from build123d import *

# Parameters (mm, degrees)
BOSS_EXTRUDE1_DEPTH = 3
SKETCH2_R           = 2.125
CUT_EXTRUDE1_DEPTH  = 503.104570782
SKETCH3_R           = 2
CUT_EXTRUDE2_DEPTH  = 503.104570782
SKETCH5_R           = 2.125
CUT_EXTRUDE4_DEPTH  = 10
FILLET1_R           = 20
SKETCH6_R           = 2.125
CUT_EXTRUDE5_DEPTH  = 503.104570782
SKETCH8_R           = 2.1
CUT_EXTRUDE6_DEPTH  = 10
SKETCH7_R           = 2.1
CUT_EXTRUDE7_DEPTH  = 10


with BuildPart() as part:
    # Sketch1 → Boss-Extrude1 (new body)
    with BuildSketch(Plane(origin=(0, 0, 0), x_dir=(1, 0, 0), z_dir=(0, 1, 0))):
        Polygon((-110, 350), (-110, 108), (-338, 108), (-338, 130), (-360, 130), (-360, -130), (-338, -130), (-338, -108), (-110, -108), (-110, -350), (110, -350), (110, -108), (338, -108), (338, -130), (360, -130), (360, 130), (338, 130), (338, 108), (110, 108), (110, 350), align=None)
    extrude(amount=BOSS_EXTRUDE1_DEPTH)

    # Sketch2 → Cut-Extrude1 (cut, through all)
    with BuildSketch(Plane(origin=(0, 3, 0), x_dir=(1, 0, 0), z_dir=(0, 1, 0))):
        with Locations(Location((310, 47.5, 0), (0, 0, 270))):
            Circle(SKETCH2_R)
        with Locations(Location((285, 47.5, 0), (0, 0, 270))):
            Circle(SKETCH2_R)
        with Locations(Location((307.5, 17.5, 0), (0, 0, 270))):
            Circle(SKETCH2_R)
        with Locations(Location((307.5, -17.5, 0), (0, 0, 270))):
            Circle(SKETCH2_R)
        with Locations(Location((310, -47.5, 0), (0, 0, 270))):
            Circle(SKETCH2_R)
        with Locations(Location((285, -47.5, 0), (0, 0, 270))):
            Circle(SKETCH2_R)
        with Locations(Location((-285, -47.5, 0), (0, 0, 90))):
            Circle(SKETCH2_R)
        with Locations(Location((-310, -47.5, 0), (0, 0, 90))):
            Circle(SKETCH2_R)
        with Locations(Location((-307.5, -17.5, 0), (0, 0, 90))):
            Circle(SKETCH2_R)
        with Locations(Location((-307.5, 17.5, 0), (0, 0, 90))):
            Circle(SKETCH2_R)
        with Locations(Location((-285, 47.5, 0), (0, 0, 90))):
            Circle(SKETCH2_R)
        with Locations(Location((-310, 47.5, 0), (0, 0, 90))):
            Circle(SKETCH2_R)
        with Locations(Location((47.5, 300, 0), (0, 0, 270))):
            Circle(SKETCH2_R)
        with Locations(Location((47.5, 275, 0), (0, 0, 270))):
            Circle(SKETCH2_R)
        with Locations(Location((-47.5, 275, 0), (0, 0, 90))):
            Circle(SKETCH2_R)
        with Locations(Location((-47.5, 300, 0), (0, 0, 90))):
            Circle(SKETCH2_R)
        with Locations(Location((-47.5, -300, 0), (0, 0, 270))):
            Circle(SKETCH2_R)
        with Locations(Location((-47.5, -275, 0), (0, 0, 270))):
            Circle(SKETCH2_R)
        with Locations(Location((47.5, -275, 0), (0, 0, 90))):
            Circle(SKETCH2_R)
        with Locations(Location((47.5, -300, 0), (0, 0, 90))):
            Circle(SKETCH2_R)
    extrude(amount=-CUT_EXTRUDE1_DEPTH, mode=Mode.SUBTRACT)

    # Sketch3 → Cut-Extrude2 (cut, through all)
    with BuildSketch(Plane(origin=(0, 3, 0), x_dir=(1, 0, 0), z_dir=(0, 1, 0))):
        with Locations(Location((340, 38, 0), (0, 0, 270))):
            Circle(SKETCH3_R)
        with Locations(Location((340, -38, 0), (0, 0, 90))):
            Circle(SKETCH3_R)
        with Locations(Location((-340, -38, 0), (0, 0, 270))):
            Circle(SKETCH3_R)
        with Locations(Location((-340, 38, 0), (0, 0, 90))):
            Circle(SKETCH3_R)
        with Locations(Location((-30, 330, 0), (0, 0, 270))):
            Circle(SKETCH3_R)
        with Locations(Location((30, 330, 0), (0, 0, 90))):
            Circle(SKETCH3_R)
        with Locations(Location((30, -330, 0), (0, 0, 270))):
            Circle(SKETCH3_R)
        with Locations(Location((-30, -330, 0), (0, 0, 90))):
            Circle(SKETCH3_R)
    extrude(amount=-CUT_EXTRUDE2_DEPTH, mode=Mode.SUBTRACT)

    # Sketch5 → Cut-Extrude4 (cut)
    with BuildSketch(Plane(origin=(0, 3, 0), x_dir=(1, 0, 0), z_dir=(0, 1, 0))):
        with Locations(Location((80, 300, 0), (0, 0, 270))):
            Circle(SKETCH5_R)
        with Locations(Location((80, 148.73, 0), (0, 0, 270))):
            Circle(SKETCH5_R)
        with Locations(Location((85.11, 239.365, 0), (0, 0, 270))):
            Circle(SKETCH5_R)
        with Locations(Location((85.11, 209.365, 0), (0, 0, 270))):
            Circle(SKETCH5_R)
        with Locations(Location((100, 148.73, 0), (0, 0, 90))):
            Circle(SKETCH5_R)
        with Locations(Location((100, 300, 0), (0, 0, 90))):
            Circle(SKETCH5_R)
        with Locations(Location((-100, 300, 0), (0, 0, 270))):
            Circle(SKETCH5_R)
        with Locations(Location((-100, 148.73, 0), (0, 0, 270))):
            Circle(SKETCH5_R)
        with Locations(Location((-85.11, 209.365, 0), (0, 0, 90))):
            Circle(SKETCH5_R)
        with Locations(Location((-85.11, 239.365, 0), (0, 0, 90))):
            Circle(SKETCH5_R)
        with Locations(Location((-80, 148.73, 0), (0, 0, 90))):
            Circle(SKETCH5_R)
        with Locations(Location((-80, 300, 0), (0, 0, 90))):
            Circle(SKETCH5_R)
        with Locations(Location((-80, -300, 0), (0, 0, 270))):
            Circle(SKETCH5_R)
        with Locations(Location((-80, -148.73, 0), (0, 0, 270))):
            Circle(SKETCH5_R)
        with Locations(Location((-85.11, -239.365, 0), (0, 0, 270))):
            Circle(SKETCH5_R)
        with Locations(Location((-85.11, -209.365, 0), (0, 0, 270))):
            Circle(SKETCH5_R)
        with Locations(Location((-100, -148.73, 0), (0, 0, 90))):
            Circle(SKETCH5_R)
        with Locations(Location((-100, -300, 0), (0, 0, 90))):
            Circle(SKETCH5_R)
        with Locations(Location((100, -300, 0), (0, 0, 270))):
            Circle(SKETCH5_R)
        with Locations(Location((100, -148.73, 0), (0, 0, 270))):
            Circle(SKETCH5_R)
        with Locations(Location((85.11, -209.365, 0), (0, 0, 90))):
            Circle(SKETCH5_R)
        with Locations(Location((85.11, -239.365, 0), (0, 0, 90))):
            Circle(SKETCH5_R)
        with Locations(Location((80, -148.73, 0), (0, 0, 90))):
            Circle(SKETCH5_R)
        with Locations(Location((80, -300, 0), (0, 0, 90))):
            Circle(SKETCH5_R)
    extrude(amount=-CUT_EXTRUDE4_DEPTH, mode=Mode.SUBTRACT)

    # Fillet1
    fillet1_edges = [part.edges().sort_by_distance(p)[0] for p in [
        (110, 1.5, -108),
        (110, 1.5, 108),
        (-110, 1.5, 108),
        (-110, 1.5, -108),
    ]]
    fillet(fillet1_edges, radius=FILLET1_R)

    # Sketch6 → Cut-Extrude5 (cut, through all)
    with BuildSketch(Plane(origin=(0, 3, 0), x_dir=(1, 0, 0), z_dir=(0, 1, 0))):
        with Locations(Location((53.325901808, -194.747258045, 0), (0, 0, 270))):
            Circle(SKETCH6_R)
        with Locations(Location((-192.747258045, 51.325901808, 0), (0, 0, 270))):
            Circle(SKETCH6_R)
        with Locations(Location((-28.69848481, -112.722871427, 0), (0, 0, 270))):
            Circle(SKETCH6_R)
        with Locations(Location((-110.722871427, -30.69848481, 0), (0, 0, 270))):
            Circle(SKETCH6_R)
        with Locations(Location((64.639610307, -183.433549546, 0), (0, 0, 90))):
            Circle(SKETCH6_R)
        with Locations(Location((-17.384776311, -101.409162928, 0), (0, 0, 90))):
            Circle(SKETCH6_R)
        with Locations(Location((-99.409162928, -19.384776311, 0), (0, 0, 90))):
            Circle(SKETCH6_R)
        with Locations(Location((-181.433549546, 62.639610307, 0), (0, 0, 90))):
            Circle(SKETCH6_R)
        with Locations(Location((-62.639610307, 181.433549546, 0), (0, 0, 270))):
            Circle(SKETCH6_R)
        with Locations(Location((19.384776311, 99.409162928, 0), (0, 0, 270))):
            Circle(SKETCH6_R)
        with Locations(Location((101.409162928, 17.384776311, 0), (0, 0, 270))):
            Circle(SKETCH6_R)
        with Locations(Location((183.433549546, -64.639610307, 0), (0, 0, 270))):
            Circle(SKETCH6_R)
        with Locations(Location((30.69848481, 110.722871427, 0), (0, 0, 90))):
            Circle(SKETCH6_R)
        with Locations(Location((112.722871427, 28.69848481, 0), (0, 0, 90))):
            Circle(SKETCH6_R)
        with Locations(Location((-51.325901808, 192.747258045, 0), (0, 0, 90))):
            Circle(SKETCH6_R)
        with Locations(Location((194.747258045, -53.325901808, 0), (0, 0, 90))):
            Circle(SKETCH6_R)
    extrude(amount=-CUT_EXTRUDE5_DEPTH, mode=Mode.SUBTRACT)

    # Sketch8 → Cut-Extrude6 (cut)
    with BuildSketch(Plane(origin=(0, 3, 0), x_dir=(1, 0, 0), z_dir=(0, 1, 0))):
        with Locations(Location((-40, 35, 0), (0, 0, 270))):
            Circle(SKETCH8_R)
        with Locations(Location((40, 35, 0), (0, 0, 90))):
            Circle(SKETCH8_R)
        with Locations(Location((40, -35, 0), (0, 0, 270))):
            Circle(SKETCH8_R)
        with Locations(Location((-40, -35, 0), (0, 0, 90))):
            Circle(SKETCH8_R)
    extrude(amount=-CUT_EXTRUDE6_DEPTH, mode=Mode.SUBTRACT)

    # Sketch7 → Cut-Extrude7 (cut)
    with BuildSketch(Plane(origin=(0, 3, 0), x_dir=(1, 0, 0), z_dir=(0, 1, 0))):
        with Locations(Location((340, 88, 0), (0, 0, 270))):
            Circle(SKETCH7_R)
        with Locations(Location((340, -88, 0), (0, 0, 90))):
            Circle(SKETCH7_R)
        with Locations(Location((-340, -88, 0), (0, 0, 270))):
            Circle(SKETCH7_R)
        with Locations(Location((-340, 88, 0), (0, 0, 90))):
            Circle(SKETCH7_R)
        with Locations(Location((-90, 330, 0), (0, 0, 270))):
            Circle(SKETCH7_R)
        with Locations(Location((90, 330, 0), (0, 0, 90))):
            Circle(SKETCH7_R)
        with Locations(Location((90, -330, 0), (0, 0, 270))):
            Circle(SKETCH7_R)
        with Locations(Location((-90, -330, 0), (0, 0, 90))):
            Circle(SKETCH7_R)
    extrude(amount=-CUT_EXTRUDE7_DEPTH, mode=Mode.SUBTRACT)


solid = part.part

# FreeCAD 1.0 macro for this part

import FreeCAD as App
import Part
import Sketcher
Q = App.Units.Quantity


def edges_at(feature, points):
    """Names of the edges that pass closest to the given points."""
    edges = feature.Shape.Edges
    near = lambda p: min(range(len(edges)), key=lambda i: edges[i].distToShape(Part.Vertex(*p))[0])
    return sorted({f"Edge{near(p) + 1}" for p in points})


def add_polygon(sketch, points):
    """Adds a closed chain of lines whose ends are joined by coincident constraints."""
    first, n = sketch.GeometryCount, len(points)
    for a, b in zip(points, points[1:] + points[:1]):
        sketch.addGeometry(Part.LineSegment(App.Vector(*a, 0), App.Vector(*b, 0)), False)
    for i in range(n):
        sketch.addConstraint(Sketcher.Constraint("Coincident", first + i, 2, first + (i + 1) % n, 1))

doc = App.newDocument("Part")
body = doc.addObject("PartDesign::Body", "Body")

# Sketch on XZ plane
sketch1 = doc.addObject("Sketcher::SketchObject", "Sketch")
body.addObject(sketch1)
sketch1.AttachmentSupport = (doc.XZ_Plane, [""])
sketch1.MapMode = "FlatFace"
add_polygon(sketch1, [(-110, -350), (-110, -108), (-338, -108), (-338, -130), (-360, -130), (-360, 130), (-338, 130), (-338, 108), (-110, 108), (-110, 350), (110, 350), (110, 108), (338, 108), (338, 130), (360, 130), (360, -130), (338, -130), (338, -108), (110, -108), (110, -350)])  # lines 0-19
sketch1.addConstraint([
    Sketcher.Constraint("Vertical", 0),
    Sketcher.Constraint("Horizontal", 1),
    Sketcher.Constraint("Vertical", 2),
    Sketcher.Constraint("Horizontal", 3),
    Sketcher.Constraint("Vertical", 4),
    Sketcher.Constraint("Horizontal", 5),
    Sketcher.Constraint("Vertical", 6),
    Sketcher.Constraint("Horizontal", 7),
    Sketcher.Constraint("Vertical", 8),
    Sketcher.Constraint("Horizontal", 9),
    Sketcher.Constraint("Vertical", 10),
    Sketcher.Constraint("Horizontal", 11),
    Sketcher.Constraint("Vertical", 12),
    Sketcher.Constraint("Horizontal", 13),
    Sketcher.Constraint("Vertical", 14),
    Sketcher.Constraint("Horizontal", 15),
    Sketcher.Constraint("Vertical", 16),
    Sketcher.Constraint("Horizontal", 17),
    Sketcher.Constraint("Vertical", 18),
    Sketcher.Constraint("Horizontal", 19),
    Sketcher.Constraint("Symmetric", 0, 2, 10, 2, -1, 1),
    Sketcher.Constraint("Symmetric", 2, 2, 12, 2, -1, 1),
    Sketcher.Constraint("Symmetric", 4, 2, 14, 2, -1, 1),
    Sketcher.Constraint("Symmetric", 6, 2, 16, 2, -1, 1),
    Sketcher.Constraint("Symmetric", 8, 2, 18, 2, -1, 1),
    Sketcher.Constraint("Symmetric", 7, 2, 10, 2, -2),
    Sketcher.Constraint("Symmetric", 5, 2, 12, 2, -2),
    Sketcher.Constraint("Equal", 15, 2),
    Sketcher.Constraint("DistanceX", 1, 2, 1, 1, Q("228 mm")),
    Sketcher.Constraint("DistanceX", 3, 2, 3, 1, Q("22 mm")),
    Sketcher.Constraint("DistanceX", 9, 1, 9, 2, Q("220 mm")),
    Sketcher.Constraint("DistanceY", 0, 1, 0, 2, Q("242 mm")),
    Sketcher.Constraint("DistanceY", 4, 1, 4, 2, Q("260 mm")),
])
pad1 = doc.addObject("PartDesign::Pad", "Pad")
body.addObject(pad1)
pad1.Profile = sketch1
pad1.Length = 3
pad1.Reversed = True

# Sketch on XZ plane
sketch2 = doc.addObject("Sketcher::SketchObject", "Sketch001")
body.addObject(sketch2)
sketch2.AttachmentSupport = (doc.XZ_Plane, [""])
sketch2.MapMode = "FlatFace"
sketch2.AttachmentOffset = App.Placement(App.Vector(0, 0, -3), App.Rotation())
sketch2.addGeometry([
    Part.Circle(App.Vector(310, -47.5, 0), App.Vector(0, 0, 1), 2.1),  # 0
    Part.Circle(App.Vector(285, -47.5, 0), App.Vector(0, 0, 1), 2.1),  # 1
    Part.Circle(App.Vector(307.5, -17.5, 0), App.Vector(0, 0, 1), 2.1),  # 2
    Part.Circle(App.Vector(307.5, 17.5, 0), App.Vector(0, 0, 1), 2.1),  # 3
    Part.Circle(App.Vector(310, 47.5, 0), App.Vector(0, 0, 1), 2.1),  # 4
    Part.Circle(App.Vector(285, 47.5, 0), App.Vector(0, 0, 1), 2.1),  # 5
    Part.Circle(App.Vector(-285, 47.5, 0), App.Vector(0, 0, 1), 2.1),  # 6
    Part.Circle(App.Vector(-310, 47.5, 0), App.Vector(0, 0, 1), 2.1),  # 7
    Part.Circle(App.Vector(-307.5, 17.5, 0), App.Vector(0, 0, 1), 2.1),  # 8
    Part.Circle(App.Vector(-307.5, -17.5, 0), App.Vector(0, 0, 1), 2.1),  # 9
    Part.Circle(App.Vector(-285, -47.5, 0), App.Vector(0, 0, 1), 2.1),  # 10
    Part.Circle(App.Vector(-310, -47.5, 0), App.Vector(0, 0, 1), 2.1),  # 11
    Part.Circle(App.Vector(47.5, -300, 0), App.Vector(0, 0, 1), 2.1),  # 12
    Part.Circle(App.Vector(47.5, -275, 0), App.Vector(0, 0, 1), 2.1),  # 13
    Part.Circle(App.Vector(-47.5, -275, 0), App.Vector(0, 0, 1), 2.1),  # 14
    Part.Circle(App.Vector(-47.5, -300, 0), App.Vector(0, 0, 1), 2.1),  # 15
    Part.Circle(App.Vector(-47.5, 300, 0), App.Vector(0, 0, 1), 2.1),  # 16
    Part.Circle(App.Vector(-47.5, 275, 0), App.Vector(0, 0, 1), 2.1),  # 17
    Part.Circle(App.Vector(47.5, 275, 0), App.Vector(0, 0, 1), 2.1),  # 18
    Part.Circle(App.Vector(47.5, 300, 0), App.Vector(0, 0, 1), 2.1),  # 19
], False)
sketch2.addConstraint([
    Sketcher.Constraint("Equal", 0, 1),
    Sketcher.Constraint("Equal", 1, 2),
    Sketcher.Constraint("Equal", 2, 3),
    Sketcher.Constraint("Equal", 3, 4),
    Sketcher.Constraint("Equal", 4, 5),
    Sketcher.Constraint("Equal", 5, 6),
    Sketcher.Constraint("Equal", 6, 7),
    Sketcher.Constraint("Equal", 7, 8),
    Sketcher.Constraint("Equal", 8, 9),
    Sketcher.Constraint("Equal", 9, 10),
    Sketcher.Constraint("Equal", 10, 11),
    Sketcher.Constraint("Equal", 11, 12),
    Sketcher.Constraint("Equal", 12, 13),
    Sketcher.Constraint("Equal", 13, 14),
    Sketcher.Constraint("Equal", 14, 15),
    Sketcher.Constraint("Equal", 15, 16),
    Sketcher.Constraint("Equal", 16, 17),
    Sketcher.Constraint("Equal", 17, 18),
    Sketcher.Constraint("Equal", 18, 19),
    Sketcher.Constraint("Symmetric", 1, 3, 6, 3, -1, 1),
    Sketcher.Constraint("Symmetric", 0, 3, 7, 3, -1, 1),
    Sketcher.Constraint("Symmetric", 2, 3, 8, 3, -1, 1),
    Sketcher.Constraint("Symmetric", 3, 3, 9, 3, -1, 1),
    Sketcher.Constraint("Symmetric", 5, 3, 10, 3, -1, 1),
    Sketcher.Constraint("Symmetric", 4, 3, 11, 3, -1, 1),
    Sketcher.Constraint("Symmetric", 12, 3, 16, 3, -1, 1),
    Sketcher.Constraint("Symmetric", 13, 3, 17, 3, -1, 1),
    Sketcher.Constraint("Symmetric", 14, 3, 18, 3, -1, 1),
    Sketcher.Constraint("Symmetric", 15, 3, 19, 3, -1, 1),
    Sketcher.Constraint("Symmetric", 5, 3, 6, 3, -2),
    Sketcher.Constraint("Symmetric", 4, 3, 7, 3, -2),
    Sketcher.Constraint("Symmetric", 3, 3, 8, 3, -2),
    Sketcher.Constraint("Symmetric", 13, 3, 14, 3, -2),
    Sketcher.Constraint("Symmetric", 12, 3, 15, 3, -2),
    Sketcher.Constraint("Horizontal", 0, 3, 1, 3),
    Sketcher.Constraint("Vertical", 12, 3, 13, 3),
    Sketcher.Constraint("Diameter", 0, Q("4.25 mm")),
    Sketcher.Constraint("DistanceX", -1, 1, 0, 3, Q("310 mm")),
    Sketcher.Constraint("DistanceX", -1, 1, 1, 3, Q("285 mm")),
    Sketcher.Constraint("DistanceY", 12, 3, -1, 1, Q("300 mm")),
    Sketcher.Constraint("DistanceY", 13, 3, -1, 1, Q("275 mm")),
    Sketcher.Constraint("DistanceY", 0, 3, 2, 3, Q("30 mm")),
    Sketcher.Constraint("DistanceY", 2, 3, 3, 3, Q("35 mm")),
    Sketcher.Constraint("DistanceX", 8, 3, 3, 3, Q("615 mm")),
    Sketcher.Constraint("DistanceX", 12, 3, 2, 3, Q("260 mm")),
])
pocket1 = doc.addObject("PartDesign::Pocket", "Pocket")
body.addObject(pocket1)
pocket1.Profile = sketch2
pocket1.Type = "ThroughAll"
pocket1.Reversed = True

# Sketch on XZ plane
sketch3 = doc.addObject("Sketcher::SketchObject", "Sketch002")
body.addObject(sketch3)
sketch3.AttachmentSupport = (doc.XZ_Plane, [""])
sketch3.MapMode = "FlatFace"
sketch3.AttachmentOffset = App.Placement(App.Vector(0, 0, -3), App.Rotation())
sketch3.addGeometry([
    Part.Circle(App.Vector(340, -38, 0), App.Vector(0, 0, 1), 2),  # 0
    Part.Circle(App.Vector(340, 38, 0), App.Vector(0, 0, 1), 2),  # 1
    Part.Circle(App.Vector(-340, 38, 0), App.Vector(0, 0, 1), 2),  # 2
    Part.Circle(App.Vector(-340, -38, 0), App.Vector(0, 0, 1), 2),  # 3
    Part.Circle(App.Vector(-30, -330, 0), App.Vector(0, 0, 1), 2),  # 4
    Part.Circle(App.Vector(30, -330, 0), App.Vector(0, 0, 1), 2),  # 5
    Part.Circle(App.Vector(30, 330, 0), App.Vector(0, 0, 1), 2),  # 6
    Part.Circle(App.Vector(-30, 330, 0), App.Vector(0, 0, 1), 2),  # 7
], False)
sketch3.addConstraint([
    Sketcher.Constraint("Equal", 0, 1),
    Sketcher.Constraint("Equal", 1, 2),
    Sketcher.Constraint("Equal", 2, 3),
    Sketcher.Constraint("Equal", 3, 4),
    Sketcher.Constraint("Equal", 4, 5),
    Sketcher.Constraint("Equal", 5, 6),
    Sketcher.Constraint("Equal", 6, 7),
    Sketcher.Constraint("Symmetric", 0, 3, 2, 3, -1, 1),
    Sketcher.Constraint("Symmetric", 1, 3, 3, 3, -1, 1),
    Sketcher.Constraint("Symmetric", 4, 3, 6, 3, -1, 1),
    Sketcher.Constraint("Symmetric", 5, 3, 7, 3, -1, 1),
    Sketcher.Constraint("Symmetric", 1, 3, 2, 3, -2),
    Sketcher.Constraint("Symmetric", 4, 3, 5, 3, -2),
    Sketcher.Constraint("Diameter", 0, Q("4 mm")),
    Sketcher.Constraint("DistanceX", -1, 1, 0, 3, Q("340 mm")),
    Sketcher.Constraint("DistanceY", 0, 3, -1, 1, Q("38 mm")),
    Sketcher.Constraint("DistanceX", 4, 3, -1, 1, Q("30 mm")),
    Sketcher.Constraint("DistanceY", 4, 3, -1, 1, Q("330 mm")),
])
pocket2 = doc.addObject("PartDesign::Pocket", "Pocket001")
body.addObject(pocket2)
pocket2.Profile = sketch3
pocket2.Type = "ThroughAll"
pocket2.Reversed = True

# Sketch on XZ plane
sketch4 = doc.addObject("Sketcher::SketchObject", "Sketch003")
body.addObject(sketch4)
sketch4.AttachmentSupport = (doc.XZ_Plane, [""])
sketch4.MapMode = "FlatFace"
sketch4.AttachmentOffset = App.Placement(App.Vector(0, 0, -3), App.Rotation())
sketch4.addGeometry([
    Part.Circle(App.Vector(80, -300, 0), App.Vector(0, 0, 1), 2.1),  # 0
    Part.Circle(App.Vector(80, -148.7, 0), App.Vector(0, 0, 1), 2.1),  # 1
    Part.Circle(App.Vector(85.1, -239.4, 0), App.Vector(0, 0, 1), 2.1),  # 2
    Part.Circle(App.Vector(85.1, -209.4, 0), App.Vector(0, 0, 1), 2.1),  # 3
    Part.Circle(App.Vector(100, -148.7, 0), App.Vector(0, 0, 1), 2.1),  # 4
    Part.Circle(App.Vector(100, -300, 0), App.Vector(0, 0, 1), 2.1),  # 5
    Part.Circle(App.Vector(-100, -300, 0), App.Vector(0, 0, 1), 2.1),  # 6
    Part.Circle(App.Vector(-100, -148.7, 0), App.Vector(0, 0, 1), 2.1),  # 7
    Part.Circle(App.Vector(-85.1, -209.4, 0), App.Vector(0, 0, 1), 2.1),  # 8
    Part.Circle(App.Vector(-85.1, -239.4, 0), App.Vector(0, 0, 1), 2.1),  # 9
    Part.Circle(App.Vector(-80, -148.7, 0), App.Vector(0, 0, 1), 2.1),  # 10
    Part.Circle(App.Vector(-80, -300, 0), App.Vector(0, 0, 1), 2.1),  # 11
    Part.Circle(App.Vector(-80, 300, 0), App.Vector(0, 0, 1), 2.1),  # 12
    Part.Circle(App.Vector(-80, 148.7, 0), App.Vector(0, 0, 1), 2.1),  # 13
    Part.Circle(App.Vector(-85.1, 239.4, 0), App.Vector(0, 0, 1), 2.1),  # 14
    Part.Circle(App.Vector(-85.1, 209.4, 0), App.Vector(0, 0, 1), 2.1),  # 15
    Part.Circle(App.Vector(-100, 148.7, 0), App.Vector(0, 0, 1), 2.1),  # 16
    Part.Circle(App.Vector(-100, 300, 0), App.Vector(0, 0, 1), 2.1),  # 17
    Part.Circle(App.Vector(100, 300, 0), App.Vector(0, 0, 1), 2.1),  # 18
    Part.Circle(App.Vector(100, 148.7, 0), App.Vector(0, 0, 1), 2.1),  # 19
    Part.Circle(App.Vector(85.1, 209.4, 0), App.Vector(0, 0, 1), 2.1),  # 20
    Part.Circle(App.Vector(85.1, 239.4, 0), App.Vector(0, 0, 1), 2.1),  # 21
    Part.Circle(App.Vector(80, 148.7, 0), App.Vector(0, 0, 1), 2.1),  # 22
    Part.Circle(App.Vector(80, 300, 0), App.Vector(0, 0, 1), 2.1),  # 23
], False)
sketch4.addConstraint([
    Sketcher.Constraint("Equal", 0, 1),
    Sketcher.Constraint("Equal", 1, 2),
    Sketcher.Constraint("Equal", 2, 3),
    Sketcher.Constraint("Equal", 3, 4),
    Sketcher.Constraint("Equal", 4, 5),
    Sketcher.Constraint("Equal", 5, 6),
    Sketcher.Constraint("Equal", 6, 7),
    Sketcher.Constraint("Equal", 7, 8),
    Sketcher.Constraint("Equal", 8, 9),
    Sketcher.Constraint("Equal", 9, 10),
    Sketcher.Constraint("Equal", 10, 11),
    Sketcher.Constraint("Equal", 11, 12),
    Sketcher.Constraint("Equal", 12, 13),
    Sketcher.Constraint("Equal", 13, 14),
    Sketcher.Constraint("Equal", 14, 15),
    Sketcher.Constraint("Equal", 15, 16),
    Sketcher.Constraint("Equal", 16, 17),
    Sketcher.Constraint("Equal", 17, 18),
    Sketcher.Constraint("Equal", 18, 19),
    Sketcher.Constraint("Equal", 19, 20),
    Sketcher.Constraint("Equal", 20, 21),
    Sketcher.Constraint("Equal", 21, 22),
    Sketcher.Constraint("Equal", 22, 23),
    Sketcher.Constraint("Symmetric", 0, 3, 12, 3, -1, 1),
    Sketcher.Constraint("Symmetric", 1, 3, 13, 3, -1, 1),
    Sketcher.Constraint("Symmetric", 2, 3, 14, 3, -1, 1),
    Sketcher.Constraint("Symmetric", 3, 3, 15, 3, -1, 1),
    Sketcher.Constraint("Symmetric", 4, 3, 16, 3, -1, 1),
    Sketcher.Constraint("Symmetric", 5, 3, 17, 3, -1, 1),
    Sketcher.Constraint("Symmetric", 6, 3, 18, 3, -1, 1),
    Sketcher.Constraint("Symmetric", 7, 3, 19, 3, -1, 1),
    Sketcher.Constraint("Symmetric", 8, 3, 20, 3, -1, 1),
    Sketcher.Constraint("Symmetric", 9, 3, 21, 3, -1, 1),
    Sketcher.Constraint("Symmetric", 10, 3, 22, 3, -1, 1),
    Sketcher.Constraint("Symmetric", 11, 3, 23, 3, -1, 1),
    Sketcher.Constraint("Symmetric", 5, 3, 6, 3, -2),
    Sketcher.Constraint("Symmetric", 4, 3, 7, 3, -2),
    Sketcher.Constraint("Symmetric", 3, 3, 8, 3, -2),
    Sketcher.Constraint("Symmetric", 2, 3, 9, 3, -2),
    Sketcher.Constraint("Symmetric", 1, 3, 10, 3, -2),
    Sketcher.Constraint("Symmetric", 0, 3, 11, 3, -2),
    Sketcher.Constraint("Horizontal", 1, 3, 4, 3),
    Sketcher.Constraint("Horizontal", 0, 3, 5, 3),
    Sketcher.Constraint("Vertical", 0, 3, 1, 3),
    Sketcher.Constraint("Vertical", 2, 3, 3, 3),
    Sketcher.Constraint("Vertical", 4, 3, 5, 3),
    Sketcher.Constraint("Diameter", 0, Q("4.25 mm")),
    Sketcher.Constraint("DistanceX", -1, 1, 0, 3, Q("80 mm")),
    Sketcher.Constraint("DistanceY", 0, 3, -1, 1, Q("300 mm")),
    Sketcher.Constraint("DistanceX", -1, 1, 4, 3, Q("100 mm")),
    Sketcher.Constraint("DistanceY", 2, 3, 3, 3, Q("30 mm")),
    Sketcher.Constraint("DistanceY", 1, 3, -1, 1, Q("148.73 mm")),
    Sketcher.Constraint("DistanceX", -1, 1, 2, 3, Q("85.11 mm")),
    Sketcher.Constraint("DistanceY", 2, 3, -1, 1, Q("239.365 mm")),
])
pocket3 = doc.addObject("PartDesign::Pocket", "Pocket002")
body.addObject(pocket3)
pocket3.Profile = sketch4
pocket3.Length = 10
pocket3.Reversed = True
doc.recompute()

fillet = doc.addObject("PartDesign::Fillet", "Fillet")
body.addObject(fillet)
fillet.Base = (pocket3, edges_at(pocket3, [
    (110, 1.5, -108),
    (110, 1.5, 108),
    (-110, 1.5, 108),
    (-110, 1.5, -108),
]))
fillet.Radius = 20

# Sketch on XZ plane
sketch5 = doc.addObject("Sketcher::SketchObject", "Sketch004")
body.addObject(sketch5)
sketch5.AttachmentSupport = (doc.XZ_Plane, [""])
sketch5.MapMode = "FlatFace"
sketch5.AttachmentOffset = App.Placement(App.Vector(0, 0, -3), App.Rotation())
sketch5.addGeometry([
    Part.Circle(App.Vector(53.3, 194.7, 0), App.Vector(0, 0, 1), 2.1),  # 0
    Part.Circle(App.Vector(-192.7, -51.3, 0), App.Vector(0, 0, 1), 2.1),  # 1
    Part.Circle(App.Vector(-28.7, 112.7, 0), App.Vector(0, 0, 1), 2.1),  # 2
    Part.Circle(App.Vector(-110.7, 30.7, 0), App.Vector(0, 0, 1), 2.1),  # 3
    Part.Circle(App.Vector(64.6, 183.4, 0), App.Vector(0, 0, 1), 2.1),  # 4
    Part.Circle(App.Vector(-17.4, 101.4, 0), App.Vector(0, 0, 1), 2.1),  # 5
    Part.Circle(App.Vector(-99.4, 19.4, 0), App.Vector(0, 0, 1), 2.1),  # 6
    Part.Circle(App.Vector(-181.4, -62.6, 0), App.Vector(0, 0, 1), 2.1),  # 7
    Part.Circle(App.Vector(-62.6, -181.4, 0), App.Vector(0, 0, 1), 2.1),  # 8
    Part.Circle(App.Vector(19.4, -99.4, 0), App.Vector(0, 0, 1), 2.1),  # 9
    Part.Circle(App.Vector(101.4, -17.4, 0), App.Vector(0, 0, 1), 2.1),  # 10
    Part.Circle(App.Vector(183.4, 64.6, 0), App.Vector(0, 0, 1), 2.1),  # 11
    Part.Circle(App.Vector(30.7, -110.7, 0), App.Vector(0, 0, 1), 2.1),  # 12
    Part.Circle(App.Vector(112.7, -28.7, 0), App.Vector(0, 0, 1), 2.1),  # 13
    Part.Circle(App.Vector(-51.3, -192.7, 0), App.Vector(0, 0, 1), 2.1),  # 14
    Part.Circle(App.Vector(194.7, 53.3, 0), App.Vector(0, 0, 1), 2.1),  # 15
], False)
sketch5.addConstraint([
    Sketcher.Constraint("Equal", 0, 1),
    Sketcher.Constraint("Equal", 1, 2),
    Sketcher.Constraint("Equal", 2, 3),
    Sketcher.Constraint("Equal", 3, 4),
    Sketcher.Constraint("Equal", 4, 5),
    Sketcher.Constraint("Equal", 5, 6),
    Sketcher.Constraint("Equal", 6, 7),
    Sketcher.Constraint("Equal", 7, 8),
    Sketcher.Constraint("Equal", 8, 9),
    Sketcher.Constraint("Equal", 9, 10),
    Sketcher.Constraint("Equal", 10, 11),
    Sketcher.Constraint("Equal", 11, 12),
    Sketcher.Constraint("Equal", 12, 13),
    Sketcher.Constraint("Equal", 13, 14),
    Sketcher.Constraint("Equal", 14, 15),
    Sketcher.Constraint("Diameter", 0, Q("4.25 mm")),
    Sketcher.Constraint("DistanceX", -1, 1, 0, 3, Q("53.325902 mm")),
    Sketcher.Constraint("DistanceY", 1, 3, -1, 1, Q("51.325902 mm")),
    Sketcher.Constraint("DistanceX", 14, 3, -1, 1, Q("51.325902 mm")),
    Sketcher.Constraint("DistanceY", -1, 1, 15, 3, Q("53.325902 mm")),
    Sketcher.Constraint("DistanceY", -1, 1, 0, 3, Q("194.747258 mm")),
    Sketcher.Constraint("DistanceX", 1, 3, -1, 1, Q("192.747258 mm")),
    Sketcher.Constraint("DistanceY", -1, 1, 2, 3, Q("112.722871 mm")),
    Sketcher.Constraint("DistanceX", 3, 3, -1, 1, Q("110.722871 mm")),
    Sketcher.Constraint("DistanceX", -1, 1, 4, 3, Q("64.63961 mm")),
    Sketcher.Constraint("DistanceY", -1, 1, 4, 3, Q("183.43355 mm")),
    Sketcher.Constraint("DistanceX", 7, 3, -1, 1, Q("181.43355 mm")),
    Sketcher.Constraint("DistanceY", 7, 3, -1, 1, Q("62.63961 mm")),
    Sketcher.Constraint("DistanceX", 8, 3, -1, 1, Q("62.63961 mm")),
    Sketcher.Constraint("DistanceY", 8, 3, -1, 1, Q("181.43355 mm")),
    Sketcher.Constraint("DistanceX", -1, 1, 11, 3, Q("183.43355 mm")),
    Sketcher.Constraint("DistanceY", -1, 1, 11, 3, Q("64.63961 mm")),
    Sketcher.Constraint("DistanceY", 12, 3, -1, 1, Q("110.722871 mm")),
    Sketcher.Constraint("DistanceX", -1, 1, 13, 3, Q("112.722871 mm")),
    Sketcher.Constraint("DistanceY", 14, 3, -1, 1, Q("192.747258 mm")),
    Sketcher.Constraint("DistanceX", -1, 1, 15, 3, Q("194.747258 mm")),
    Sketcher.Constraint("DistanceX", 2, 3, 5, 3, Q("11.313708 mm")),
    Sketcher.Constraint("DistanceY", 5, 3, 2, 3, Q("11.313708 mm")),
    Sketcher.Constraint("DistanceY", 3, 3, 5, 3, Q("70.710678 mm")),
    Sketcher.Constraint("DistanceX", 5, 3, 0, 3, Q("70.710678 mm")),
    Sketcher.Constraint("DistanceX", 3, 3, 6, 3, Q("11.313708 mm")),
    Sketcher.Constraint("DistanceY", 6, 3, 3, 3, Q("11.313708 mm")),
    Sketcher.Constraint("DistanceX", 6, 3, 9, 3, Q("118.793939 mm")),
    Sketcher.Constraint("DistanceY", 9, 3, 6, 3, Q("118.793939 mm")),
    Sketcher.Constraint("DistanceX", 5, 3, 10, 3, Q("118.793939 mm")),
    Sketcher.Constraint("DistanceY", 10, 3, 5, 3, Q("118.793939 mm")),
    Sketcher.Constraint("DistanceX", 9, 3, 12, 3, Q("11.313708 mm")),
    Sketcher.Constraint("DistanceY", 13, 3, 10, 3, Q("11.313708 mm")),
])
pocket4 = doc.addObject("PartDesign::Pocket", "Pocket003")
body.addObject(pocket4)
pocket4.Profile = sketch5
pocket4.Type = "ThroughAll"
pocket4.Reversed = True

# Sketch on XZ plane
sketch6 = doc.addObject("Sketcher::SketchObject", "Sketch005")
body.addObject(sketch6)
sketch6.AttachmentSupport = (doc.XZ_Plane, [""])
sketch6.MapMode = "FlatFace"
sketch6.AttachmentOffset = App.Placement(App.Vector(0, 0, -3), App.Rotation())
sketch6.addGeometry([
    Part.Circle(App.Vector(-40, -35, 0), App.Vector(0, 0, 1), 2.1),
    Part.Circle(App.Vector(40, -35, 0), App.Vector(0, 0, 1), 2.1),
    Part.Circle(App.Vector(40, 35, 0), App.Vector(0, 0, 1), 2.1),
    Part.Circle(App.Vector(-40, 35, 0), App.Vector(0, 0, 1), 2.1),
], False)
sketch6.addConstraint([
    Sketcher.Constraint("Equal", 0, 1),
    Sketcher.Constraint("Equal", 1, 2),
    Sketcher.Constraint("Equal", 2, 3),
    Sketcher.Constraint("Symmetric", 0, 3, 2, 3, -1, 1),
    Sketcher.Constraint("Symmetric", 1, 3, 3, 3, -1, 1),
    Sketcher.Constraint("Symmetric", 0, 3, 1, 3, -2),
    Sketcher.Constraint("Diameter", 0, Q("4.2 mm")),
    Sketcher.Constraint("DistanceX", 0, 3, -1, 1, Q("40 mm")),
    Sketcher.Constraint("DistanceY", 0, 3, -1, 1, Q("35 mm")),
])
pocket5 = doc.addObject("PartDesign::Pocket", "Pocket004")
body.addObject(pocket5)
pocket5.Profile = sketch6
pocket5.Length = 10
pocket5.Reversed = True

# Sketch on XZ plane
sketch7 = doc.addObject("Sketcher::SketchObject", "Sketch006")
body.addObject(sketch7)
sketch7.AttachmentSupport = (doc.XZ_Plane, [""])
sketch7.MapMode = "FlatFace"
sketch7.AttachmentOffset = App.Placement(App.Vector(0, 0, -3), App.Rotation())
sketch7.addGeometry([
    Part.Circle(App.Vector(340, -88, 0), App.Vector(0, 0, 1), 2.1),  # 0
    Part.Circle(App.Vector(340, 88, 0), App.Vector(0, 0, 1), 2.1),  # 1
    Part.Circle(App.Vector(-340, 88, 0), App.Vector(0, 0, 1), 2.1),  # 2
    Part.Circle(App.Vector(-340, -88, 0), App.Vector(0, 0, 1), 2.1),  # 3
    Part.Circle(App.Vector(-90, -330, 0), App.Vector(0, 0, 1), 2.1),  # 4
    Part.Circle(App.Vector(90, -330, 0), App.Vector(0, 0, 1), 2.1),  # 5
    Part.Circle(App.Vector(90, 330, 0), App.Vector(0, 0, 1), 2.1),  # 6
    Part.Circle(App.Vector(-90, 330, 0), App.Vector(0, 0, 1), 2.1),  # 7
], False)
sketch7.addConstraint([
    Sketcher.Constraint("Equal", 0, 1),
    Sketcher.Constraint("Equal", 1, 2),
    Sketcher.Constraint("Equal", 2, 3),
    Sketcher.Constraint("Equal", 3, 4),
    Sketcher.Constraint("Equal", 4, 5),
    Sketcher.Constraint("Equal", 5, 6),
    Sketcher.Constraint("Equal", 6, 7),
    Sketcher.Constraint("Symmetric", 0, 3, 2, 3, -1, 1),
    Sketcher.Constraint("Symmetric", 1, 3, 3, 3, -1, 1),
    Sketcher.Constraint("Symmetric", 4, 3, 6, 3, -1, 1),
    Sketcher.Constraint("Symmetric", 5, 3, 7, 3, -1, 1),
    Sketcher.Constraint("Symmetric", 1, 3, 2, 3, -2),
    Sketcher.Constraint("Symmetric", 4, 3, 5, 3, -2),
    Sketcher.Constraint("Diameter", 0, Q("4.2 mm")),
    Sketcher.Constraint("DistanceX", -1, 1, 0, 3, Q("340 mm")),
    Sketcher.Constraint("DistanceY", 0, 3, -1, 1, Q("88 mm")),
    Sketcher.Constraint("DistanceX", 4, 3, -1, 1, Q("90 mm")),
    Sketcher.Constraint("DistanceY", 4, 3, -1, 1, Q("330 mm")),
])
pocket6 = doc.addObject("PartDesign::Pocket", "Pocket005")
body.addObject(pocket6)
pocket6.Profile = sketch7
pocket6.Length = 10
pocket6.Reversed = True

doc.recompute()
